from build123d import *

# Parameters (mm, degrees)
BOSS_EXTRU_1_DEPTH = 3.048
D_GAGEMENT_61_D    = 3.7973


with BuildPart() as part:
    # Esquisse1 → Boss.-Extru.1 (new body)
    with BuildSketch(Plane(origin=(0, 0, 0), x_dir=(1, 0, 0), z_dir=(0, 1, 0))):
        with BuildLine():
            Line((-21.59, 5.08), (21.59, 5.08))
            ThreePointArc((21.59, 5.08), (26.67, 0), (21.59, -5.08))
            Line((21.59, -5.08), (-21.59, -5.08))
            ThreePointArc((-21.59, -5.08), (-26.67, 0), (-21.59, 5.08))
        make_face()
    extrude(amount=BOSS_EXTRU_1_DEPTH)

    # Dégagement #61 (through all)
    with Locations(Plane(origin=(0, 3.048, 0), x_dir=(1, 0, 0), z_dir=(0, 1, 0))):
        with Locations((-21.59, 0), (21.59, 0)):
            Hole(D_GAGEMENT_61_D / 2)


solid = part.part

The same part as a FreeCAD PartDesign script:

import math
import FreeCAD as App
import Part
import Sketcher
Q = App.Units.Quantity

doc = App.newDocument("Part")
body = doc.addObject("PartDesign::Body", "Body")

sketch1 = body.newObject("Sketcher::SketchObject", "Sketch")
sketch1.AttachmentSupport = (doc.getObject("XZ_Plane"), [""])
sketch1.MapMode = "FlatFace"
sketch1.addGeometry([
    Part.LineSegment(App.Vector(22, -5, 0), App.Vector(-22, -5, 0)),
    Part.ArcOfCircle(Part.Circle(App.Vector(-22, 0, 0), App.Vector(0, 0, 1), 5), math.radians(90), math.radians(270)),
    Part.LineSegment(App.Vector(-22, 5, 0), App.Vector(22, 5, 0)),
    Part.ArcOfCircle(Part.Circle(App.Vector(22, 0, 0), App.Vector(0, 0, 1), 5), math.radians(-90), math.radians(90)),
], False)
sketch1.addConstraint([
    Sketcher.Constraint("Tangent", 0, 2, 1, 2),
    Sketcher.Constraint("Tangent", 1, 1, 2, 1),
    Sketcher.Constraint("Tangent", 2, 2, 3, 2),
    Sketcher.Constraint("Tangent", 3, 1, 0, 1),
    Sketcher.Constraint("Horizontal", 0),
    Sketcher.Constraint("Horizontal", 2),
    Sketcher.Constraint("Symmetric", 1, 3, 3, 3, -1, 1),
    Sketcher.Constraint("Radius", 1, Q("0.2 in")),
    Sketcher.Constraint("DistanceX", 0, 2, 0, 1, Q("1.7 in")),
])
pad1 = body.newObject("PartDesign::Pad", "Pad")
pad1.Profile = sketch1
pad1.Length = Q("0.12 in")
pad1.Reversed = True

sketch2 = body.newObject("Sketcher::SketchObject", "Sketch001")
sketch2.AttachmentSupport = (doc.getObject("XZ_Plane"), [""])
sketch2.MapMode = "FlatFace"
sketch2.AttachmentOffset = App.Placement(App.Vector(0, 0, -0.12 * 25.4), App.Rotation())
sketch2.addGeometry([
    Part.Circle(App.Vector(-21.6, 0, 0), App.Vector(0, 0, 1), 1.9),
    Part.Circle(App.Vector(21.6, 0, 0), App.Vector(0, 0, 1), 1.9),
], False)
sketch2.addConstraint([
    Sketcher.Constraint("Equal", 0, 1),
    Sketcher.Constraint("Symmetric", 0, 3, 1, 3, -1, 1),
    Sketcher.Constraint("PointOnObject", 0, 3, -1),
    Sketcher.Constraint("Diameter", 0, Q("0.1495 in")),
    Sketcher.Constraint("DistanceX", 0, 3, 1, 3, Q("1.7 in")),
])
doc.recompute()
hole = body.newObject("PartDesign::Hole", "Hole")
hole.Profile = sketch2
hole.ThreadType = "None"
hole.Diameter = Q("0.1495 in")
hole.DepthType = "ThroughAll"
hole.Reversed = True

doc.recompute()
